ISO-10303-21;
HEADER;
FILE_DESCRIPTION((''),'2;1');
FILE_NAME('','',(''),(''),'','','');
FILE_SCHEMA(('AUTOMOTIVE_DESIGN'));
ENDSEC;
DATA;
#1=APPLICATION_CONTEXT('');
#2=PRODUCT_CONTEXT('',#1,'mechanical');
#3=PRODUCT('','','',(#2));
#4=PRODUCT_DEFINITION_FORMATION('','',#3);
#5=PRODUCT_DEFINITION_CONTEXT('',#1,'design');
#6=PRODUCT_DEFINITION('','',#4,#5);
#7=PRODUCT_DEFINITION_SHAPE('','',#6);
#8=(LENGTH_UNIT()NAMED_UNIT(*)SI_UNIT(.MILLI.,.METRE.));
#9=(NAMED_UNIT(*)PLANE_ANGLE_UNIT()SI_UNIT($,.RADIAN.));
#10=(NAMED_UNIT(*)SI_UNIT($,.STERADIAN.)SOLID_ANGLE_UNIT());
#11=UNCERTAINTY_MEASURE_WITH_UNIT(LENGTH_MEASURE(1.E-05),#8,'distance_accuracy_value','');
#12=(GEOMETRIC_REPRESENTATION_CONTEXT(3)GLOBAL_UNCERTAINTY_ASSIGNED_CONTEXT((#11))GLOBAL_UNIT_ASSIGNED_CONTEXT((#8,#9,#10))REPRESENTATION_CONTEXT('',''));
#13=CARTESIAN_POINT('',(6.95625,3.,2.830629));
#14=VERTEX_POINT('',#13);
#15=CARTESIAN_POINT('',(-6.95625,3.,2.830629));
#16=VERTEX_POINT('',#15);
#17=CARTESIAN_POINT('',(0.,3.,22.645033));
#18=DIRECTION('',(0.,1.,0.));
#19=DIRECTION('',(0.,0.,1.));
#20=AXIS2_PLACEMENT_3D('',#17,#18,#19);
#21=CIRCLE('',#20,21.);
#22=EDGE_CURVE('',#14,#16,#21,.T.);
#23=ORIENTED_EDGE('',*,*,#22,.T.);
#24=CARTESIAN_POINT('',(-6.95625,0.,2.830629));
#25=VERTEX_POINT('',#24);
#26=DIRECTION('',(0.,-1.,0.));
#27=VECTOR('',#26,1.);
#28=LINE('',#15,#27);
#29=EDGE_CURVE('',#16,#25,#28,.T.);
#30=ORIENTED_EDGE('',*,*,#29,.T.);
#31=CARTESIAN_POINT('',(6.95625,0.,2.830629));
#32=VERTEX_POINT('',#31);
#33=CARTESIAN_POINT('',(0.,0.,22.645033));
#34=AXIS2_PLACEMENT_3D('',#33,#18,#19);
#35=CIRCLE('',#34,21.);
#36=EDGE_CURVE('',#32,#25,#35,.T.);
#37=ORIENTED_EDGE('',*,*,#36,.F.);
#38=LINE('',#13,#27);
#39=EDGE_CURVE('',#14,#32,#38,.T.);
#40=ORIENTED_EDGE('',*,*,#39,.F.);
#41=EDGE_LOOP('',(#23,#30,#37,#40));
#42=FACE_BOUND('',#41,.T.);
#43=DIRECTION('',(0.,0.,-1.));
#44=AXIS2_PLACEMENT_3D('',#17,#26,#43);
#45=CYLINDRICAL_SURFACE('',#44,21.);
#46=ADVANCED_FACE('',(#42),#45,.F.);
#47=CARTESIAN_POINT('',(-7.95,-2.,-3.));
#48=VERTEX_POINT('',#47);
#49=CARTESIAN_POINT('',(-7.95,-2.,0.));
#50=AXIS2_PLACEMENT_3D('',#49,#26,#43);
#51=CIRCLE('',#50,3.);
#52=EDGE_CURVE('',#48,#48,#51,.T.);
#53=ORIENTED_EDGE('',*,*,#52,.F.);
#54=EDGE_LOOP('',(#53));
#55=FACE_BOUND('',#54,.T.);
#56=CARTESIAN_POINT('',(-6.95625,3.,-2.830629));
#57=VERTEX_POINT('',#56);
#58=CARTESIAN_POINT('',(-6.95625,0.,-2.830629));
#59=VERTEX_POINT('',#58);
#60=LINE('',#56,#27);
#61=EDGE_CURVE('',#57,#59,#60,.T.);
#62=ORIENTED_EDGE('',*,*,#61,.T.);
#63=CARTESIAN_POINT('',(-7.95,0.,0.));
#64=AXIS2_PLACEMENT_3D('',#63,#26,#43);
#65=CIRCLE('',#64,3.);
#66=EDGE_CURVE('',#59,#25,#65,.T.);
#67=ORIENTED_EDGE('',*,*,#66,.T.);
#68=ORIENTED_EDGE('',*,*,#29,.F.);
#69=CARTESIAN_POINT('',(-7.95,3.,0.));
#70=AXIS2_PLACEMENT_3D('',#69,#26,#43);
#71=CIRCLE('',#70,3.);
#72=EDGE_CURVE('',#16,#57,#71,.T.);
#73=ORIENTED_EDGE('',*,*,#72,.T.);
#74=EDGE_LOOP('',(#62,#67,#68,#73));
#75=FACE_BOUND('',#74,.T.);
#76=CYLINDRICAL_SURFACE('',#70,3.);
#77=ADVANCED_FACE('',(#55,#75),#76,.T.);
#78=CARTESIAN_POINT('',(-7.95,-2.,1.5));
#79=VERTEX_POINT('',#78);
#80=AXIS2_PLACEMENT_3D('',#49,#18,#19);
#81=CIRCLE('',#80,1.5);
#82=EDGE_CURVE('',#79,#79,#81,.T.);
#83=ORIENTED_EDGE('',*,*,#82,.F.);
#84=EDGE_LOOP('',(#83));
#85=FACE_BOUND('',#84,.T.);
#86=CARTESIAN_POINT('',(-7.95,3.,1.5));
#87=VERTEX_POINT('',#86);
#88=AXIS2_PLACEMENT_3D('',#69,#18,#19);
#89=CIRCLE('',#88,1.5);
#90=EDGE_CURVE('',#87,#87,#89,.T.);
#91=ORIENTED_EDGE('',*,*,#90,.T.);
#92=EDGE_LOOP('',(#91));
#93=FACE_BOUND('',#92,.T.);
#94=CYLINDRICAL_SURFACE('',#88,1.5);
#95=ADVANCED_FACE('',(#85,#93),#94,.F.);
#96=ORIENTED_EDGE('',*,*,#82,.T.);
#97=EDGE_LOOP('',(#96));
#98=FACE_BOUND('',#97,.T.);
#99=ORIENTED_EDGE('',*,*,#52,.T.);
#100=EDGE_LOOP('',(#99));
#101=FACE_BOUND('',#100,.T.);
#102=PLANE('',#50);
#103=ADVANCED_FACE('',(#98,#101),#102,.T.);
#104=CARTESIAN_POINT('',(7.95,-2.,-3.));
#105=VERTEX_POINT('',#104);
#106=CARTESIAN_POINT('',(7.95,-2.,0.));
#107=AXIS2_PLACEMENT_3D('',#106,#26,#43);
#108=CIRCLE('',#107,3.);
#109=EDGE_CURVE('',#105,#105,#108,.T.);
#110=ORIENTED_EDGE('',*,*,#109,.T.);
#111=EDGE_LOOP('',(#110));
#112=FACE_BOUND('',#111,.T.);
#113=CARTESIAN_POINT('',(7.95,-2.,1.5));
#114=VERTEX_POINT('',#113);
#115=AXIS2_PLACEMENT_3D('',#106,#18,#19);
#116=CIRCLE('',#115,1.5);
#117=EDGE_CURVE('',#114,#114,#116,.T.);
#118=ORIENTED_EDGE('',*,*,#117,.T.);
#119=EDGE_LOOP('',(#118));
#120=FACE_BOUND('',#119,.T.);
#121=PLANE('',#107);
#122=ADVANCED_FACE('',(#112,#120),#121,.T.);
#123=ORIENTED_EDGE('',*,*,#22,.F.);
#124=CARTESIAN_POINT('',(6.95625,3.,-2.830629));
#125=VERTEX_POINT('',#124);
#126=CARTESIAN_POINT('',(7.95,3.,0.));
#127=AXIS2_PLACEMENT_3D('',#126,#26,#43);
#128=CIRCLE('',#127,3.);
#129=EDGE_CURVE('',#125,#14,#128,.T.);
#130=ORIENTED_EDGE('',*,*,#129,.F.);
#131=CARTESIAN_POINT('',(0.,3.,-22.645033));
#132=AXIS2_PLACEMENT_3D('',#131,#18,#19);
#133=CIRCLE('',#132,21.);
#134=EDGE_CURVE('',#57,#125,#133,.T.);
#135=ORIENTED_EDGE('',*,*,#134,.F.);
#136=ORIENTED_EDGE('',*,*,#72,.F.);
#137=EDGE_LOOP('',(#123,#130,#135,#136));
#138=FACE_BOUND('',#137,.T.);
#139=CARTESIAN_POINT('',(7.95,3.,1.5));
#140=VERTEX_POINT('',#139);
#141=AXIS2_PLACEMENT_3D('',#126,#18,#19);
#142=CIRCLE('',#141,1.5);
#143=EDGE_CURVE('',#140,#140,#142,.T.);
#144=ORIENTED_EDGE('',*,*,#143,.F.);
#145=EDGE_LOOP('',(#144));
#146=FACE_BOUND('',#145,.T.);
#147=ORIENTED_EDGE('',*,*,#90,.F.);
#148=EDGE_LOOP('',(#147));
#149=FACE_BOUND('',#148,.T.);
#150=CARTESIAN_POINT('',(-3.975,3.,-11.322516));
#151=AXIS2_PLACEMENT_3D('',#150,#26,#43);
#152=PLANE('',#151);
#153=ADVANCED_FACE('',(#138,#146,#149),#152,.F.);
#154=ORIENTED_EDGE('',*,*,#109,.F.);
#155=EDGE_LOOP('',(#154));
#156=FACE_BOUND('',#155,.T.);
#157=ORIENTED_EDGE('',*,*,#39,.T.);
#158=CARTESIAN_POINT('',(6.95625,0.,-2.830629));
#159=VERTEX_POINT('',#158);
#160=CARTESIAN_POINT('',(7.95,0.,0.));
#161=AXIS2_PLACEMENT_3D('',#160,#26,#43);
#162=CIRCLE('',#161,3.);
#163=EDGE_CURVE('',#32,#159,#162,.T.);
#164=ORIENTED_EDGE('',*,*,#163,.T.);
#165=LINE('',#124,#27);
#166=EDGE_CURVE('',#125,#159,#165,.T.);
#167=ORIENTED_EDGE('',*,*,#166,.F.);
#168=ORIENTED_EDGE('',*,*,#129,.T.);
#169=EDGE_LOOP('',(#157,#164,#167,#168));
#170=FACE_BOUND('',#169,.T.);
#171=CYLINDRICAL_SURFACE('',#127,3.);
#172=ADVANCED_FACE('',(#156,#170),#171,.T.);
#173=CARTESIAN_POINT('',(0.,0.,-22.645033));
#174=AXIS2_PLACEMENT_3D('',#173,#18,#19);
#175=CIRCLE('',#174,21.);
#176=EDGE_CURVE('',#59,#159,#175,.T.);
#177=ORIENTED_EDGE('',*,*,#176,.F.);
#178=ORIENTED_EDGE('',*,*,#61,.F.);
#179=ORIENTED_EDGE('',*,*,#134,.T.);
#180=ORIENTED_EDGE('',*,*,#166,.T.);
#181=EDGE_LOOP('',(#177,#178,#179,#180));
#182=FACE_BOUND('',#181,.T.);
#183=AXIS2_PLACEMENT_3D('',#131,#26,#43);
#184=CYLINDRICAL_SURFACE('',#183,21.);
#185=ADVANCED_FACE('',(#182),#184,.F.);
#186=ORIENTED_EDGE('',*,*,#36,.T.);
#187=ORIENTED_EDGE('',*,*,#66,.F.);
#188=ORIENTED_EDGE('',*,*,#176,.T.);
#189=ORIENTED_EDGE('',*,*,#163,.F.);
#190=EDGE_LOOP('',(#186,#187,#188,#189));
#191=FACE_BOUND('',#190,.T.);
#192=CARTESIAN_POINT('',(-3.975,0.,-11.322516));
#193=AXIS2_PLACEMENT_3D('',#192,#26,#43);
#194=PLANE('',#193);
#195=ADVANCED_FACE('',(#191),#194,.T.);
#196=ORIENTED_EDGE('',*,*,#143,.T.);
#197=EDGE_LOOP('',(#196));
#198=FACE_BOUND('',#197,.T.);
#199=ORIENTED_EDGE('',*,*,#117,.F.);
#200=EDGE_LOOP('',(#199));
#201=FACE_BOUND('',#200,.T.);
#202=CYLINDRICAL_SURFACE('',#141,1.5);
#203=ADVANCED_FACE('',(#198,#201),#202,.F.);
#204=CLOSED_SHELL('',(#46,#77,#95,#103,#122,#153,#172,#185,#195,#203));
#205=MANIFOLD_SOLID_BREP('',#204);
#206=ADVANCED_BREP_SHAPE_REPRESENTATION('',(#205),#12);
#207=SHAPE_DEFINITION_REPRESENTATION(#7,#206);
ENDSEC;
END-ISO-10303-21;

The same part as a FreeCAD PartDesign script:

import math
import FreeCAD as App
import Part
import Sketcher

doc = App.newDocument("Part")
params = doc.addObject("Spreadsheet::Sheet", "Params")
for row, (alias, value) in enumerate([
    ("sketch1_radius", "21 mm"),
    ("sketch1_radius2", "3 mm"),
    ("pad1_length", "3 mm"),
    ("sketch2_diameter", "6 mm"),
    ("pad2_length", "2 mm"),
    ("sketch3_diameter", "6 mm"),
    ("pad3_length", "2 mm"),
    ("sketch4_diameter", "3 mm"),
    ("hole_diameter", "3 mm"),
], start=1):
    params.set(f"A{row}", alias)
    params.set(f"B{row}", "=" + value)
    params.setAlias(f"B{row}", alias)

body = doc.addObject("PartDesign::Body", "Body")

sketch1 = body.newObject("Sketcher::SketchObject", "Sketch")
sketch1.AttachmentSupport = (doc.getObject("XZ_Plane"), [""])
sketch1.MapMode = "FlatFace"
sketch1.addGeometry([
    Part.ArcOfCircle(Part.Circle(App.Vector(0, -22.645033, 0), App.Vector(0, 0, 1), 21), math.radians(70.655337), math.radians(109.344663)),
    Part.ArcOfCircle(Part.Circle(App.Vector(7.95, 0, 0), App.Vector(0, 0, 1), 3), math.radians(-109.344663), math.radians(109.344663)),
    Part.ArcOfCircle(Part.Circle(App.Vector(0, 22.645033, 0), App.Vector(0, 0, 1), 21), math.radians(-109.344663), math.radians(-70.655337)),
    Part.ArcOfCircle(Part.Circle(App.Vector(-7.95, 0, 0), App.Vector(0, 0, 1), 3), math.radians(70.655337), math.radians(289.344663)),
], False)
sketch1.addConstraint([
    Sketcher.Constraint("Tangent", 0, 1, 1, 1),
    Sketcher.Constraint("Tangent", 1, 2, 2, 2),
    Sketcher.Constraint("Tangent", 2, 1, 3, 1),
    Sketcher.Constraint("Tangent", 3, 2, 0, 2),
    Sketcher.Constraint("Equal", 0, 2),
    Sketcher.Constraint("Equal", 1, 3),
    Sketcher.Constraint("Symmetric", 0, 3, 2, 3, -1, 1),
    Sketcher.Constraint("PointOnObject", 0, 3, -2),
    Sketcher.Constraint("Radius", 0, 21.0),
    Sketcher.Constraint("Radius", 1, 3.0),
    Sketcher.Constraint("DistanceX", 3, 3, 1, 3, 15.9),
])
sketch1.setExpression("Constraints[8]", "Params.sketch1_radius")
sketch1.setExpression("Constraints[9]", "Params.sketch1_radius2")
pad1 = body.newObject("PartDesign::Pad", "Pad")
pad1.Profile = sketch1
pad1.setExpression("Length", "Params.pad1_length")
pad1.Reversed = True

sketch2 = body.newObject("Sketcher::SketchObject", "Sketch001")
sketch2.AttachmentSupport = (doc.getObject("XZ_Plane"), [""])
sketch2.MapMode = "FlatFace"
sketch2.AttachmentOffset = App.Placement(App.Vector(0, 0, 2), App.Rotation())
sketch2.addGeometry(Part.Circle(App.Vector(7.95, 0, 0), App.Vector(0, 0, 1), 3), False)
sketch2.addConstraint([
    Sketcher.Constraint("PointOnObject", 0, 3, -1),
    Sketcher.Constraint("Diameter", 0, 6.0),
    Sketcher.Constraint("DistanceX", -1, 1, 0, 3, 7.95),
])
sketch2.setExpression("Constraints[1]", "Params.sketch2_diameter")
pad2 = body.newObject("PartDesign::Pad", "Pad001")
pad2.Profile = sketch2
pad2.setExpression("Length", "Params.pad2_length")
pad2.Reversed = True

sketch3 = body.newObject("Sketcher::SketchObject", "Sketch002")
sketch3.AttachmentSupport = (doc.getObject("XZ_Plane"), [""])
sketch3.MapMode = "FlatFace"
sketch3.AttachmentOffset = App.Placement(App.Vector(0, 0, 2), App.Rotation())
sketch3.addGeometry(Part.Circle(App.Vector(-7.95, 0, 0), App.Vector(0, 0, 1), 3), False)
sketch3.addConstraint([
    Sketcher.Constraint("PointOnObject", 0, 3, -1),
    Sketcher.Constraint("Diameter", 0, 6.0),
    Sketcher.Constraint("DistanceX", 0, 3, -1, 1, 7.95),
])
sketch3.setExpression("Constraints[1]", "Params.sketch3_diameter")
pad3 = body.newObject("PartDesign::Pad", "Pad002")
pad3.Profile = sketch3
pad3.setExpression("Length", "Params.pad3_length")
pad3.Reversed = True

sketch4 = body.newObject("Sketcher::SketchObject", "Sketch003")
sketch4.AttachmentSupport = (doc.getObject("XZ_Plane"), [""])
sketch4.MapMode = "FlatFace"
sketch4.AttachmentOffset = App.Placement(App.Vector(0, 0, -3), App.Rotation())
sketch4.addGeometry([
    Part.Circle(App.Vector(-7.95, 0, 0), App.Vector(0, 0, 1), 1.5),
    Part.Circle(App.Vector(7.95, 0, 0), App.Vector(0, 0, 1), 1.5),
], False)
sketch4.addConstraint([
    Sketcher.Constraint("Equal", 0, 1),
    Sketcher.Constraint("Symmetric", 0, 3, 1, 3, -1, 1),
    Sketcher.Constraint("PointOnObject", 0, 3, -1),
    Sketcher.Constraint("Diameter", 0, 3.0),
    Sketcher.Constraint("DistanceX", 0, 3, 1, 3, 15.9),
])
sketch4.setExpression("Constraints[3]", "Params.sketch4_diameter")
doc.recompute()
hole = body.newObject("PartDesign::Hole", "Hole")
hole.Profile = sketch4
hole.ThreadType = "None"
hole.setExpression("Diameter", "Params.hole_diameter")
hole.DepthType = "ThroughAll"
hole.Reversed = True

doc.recompute()
